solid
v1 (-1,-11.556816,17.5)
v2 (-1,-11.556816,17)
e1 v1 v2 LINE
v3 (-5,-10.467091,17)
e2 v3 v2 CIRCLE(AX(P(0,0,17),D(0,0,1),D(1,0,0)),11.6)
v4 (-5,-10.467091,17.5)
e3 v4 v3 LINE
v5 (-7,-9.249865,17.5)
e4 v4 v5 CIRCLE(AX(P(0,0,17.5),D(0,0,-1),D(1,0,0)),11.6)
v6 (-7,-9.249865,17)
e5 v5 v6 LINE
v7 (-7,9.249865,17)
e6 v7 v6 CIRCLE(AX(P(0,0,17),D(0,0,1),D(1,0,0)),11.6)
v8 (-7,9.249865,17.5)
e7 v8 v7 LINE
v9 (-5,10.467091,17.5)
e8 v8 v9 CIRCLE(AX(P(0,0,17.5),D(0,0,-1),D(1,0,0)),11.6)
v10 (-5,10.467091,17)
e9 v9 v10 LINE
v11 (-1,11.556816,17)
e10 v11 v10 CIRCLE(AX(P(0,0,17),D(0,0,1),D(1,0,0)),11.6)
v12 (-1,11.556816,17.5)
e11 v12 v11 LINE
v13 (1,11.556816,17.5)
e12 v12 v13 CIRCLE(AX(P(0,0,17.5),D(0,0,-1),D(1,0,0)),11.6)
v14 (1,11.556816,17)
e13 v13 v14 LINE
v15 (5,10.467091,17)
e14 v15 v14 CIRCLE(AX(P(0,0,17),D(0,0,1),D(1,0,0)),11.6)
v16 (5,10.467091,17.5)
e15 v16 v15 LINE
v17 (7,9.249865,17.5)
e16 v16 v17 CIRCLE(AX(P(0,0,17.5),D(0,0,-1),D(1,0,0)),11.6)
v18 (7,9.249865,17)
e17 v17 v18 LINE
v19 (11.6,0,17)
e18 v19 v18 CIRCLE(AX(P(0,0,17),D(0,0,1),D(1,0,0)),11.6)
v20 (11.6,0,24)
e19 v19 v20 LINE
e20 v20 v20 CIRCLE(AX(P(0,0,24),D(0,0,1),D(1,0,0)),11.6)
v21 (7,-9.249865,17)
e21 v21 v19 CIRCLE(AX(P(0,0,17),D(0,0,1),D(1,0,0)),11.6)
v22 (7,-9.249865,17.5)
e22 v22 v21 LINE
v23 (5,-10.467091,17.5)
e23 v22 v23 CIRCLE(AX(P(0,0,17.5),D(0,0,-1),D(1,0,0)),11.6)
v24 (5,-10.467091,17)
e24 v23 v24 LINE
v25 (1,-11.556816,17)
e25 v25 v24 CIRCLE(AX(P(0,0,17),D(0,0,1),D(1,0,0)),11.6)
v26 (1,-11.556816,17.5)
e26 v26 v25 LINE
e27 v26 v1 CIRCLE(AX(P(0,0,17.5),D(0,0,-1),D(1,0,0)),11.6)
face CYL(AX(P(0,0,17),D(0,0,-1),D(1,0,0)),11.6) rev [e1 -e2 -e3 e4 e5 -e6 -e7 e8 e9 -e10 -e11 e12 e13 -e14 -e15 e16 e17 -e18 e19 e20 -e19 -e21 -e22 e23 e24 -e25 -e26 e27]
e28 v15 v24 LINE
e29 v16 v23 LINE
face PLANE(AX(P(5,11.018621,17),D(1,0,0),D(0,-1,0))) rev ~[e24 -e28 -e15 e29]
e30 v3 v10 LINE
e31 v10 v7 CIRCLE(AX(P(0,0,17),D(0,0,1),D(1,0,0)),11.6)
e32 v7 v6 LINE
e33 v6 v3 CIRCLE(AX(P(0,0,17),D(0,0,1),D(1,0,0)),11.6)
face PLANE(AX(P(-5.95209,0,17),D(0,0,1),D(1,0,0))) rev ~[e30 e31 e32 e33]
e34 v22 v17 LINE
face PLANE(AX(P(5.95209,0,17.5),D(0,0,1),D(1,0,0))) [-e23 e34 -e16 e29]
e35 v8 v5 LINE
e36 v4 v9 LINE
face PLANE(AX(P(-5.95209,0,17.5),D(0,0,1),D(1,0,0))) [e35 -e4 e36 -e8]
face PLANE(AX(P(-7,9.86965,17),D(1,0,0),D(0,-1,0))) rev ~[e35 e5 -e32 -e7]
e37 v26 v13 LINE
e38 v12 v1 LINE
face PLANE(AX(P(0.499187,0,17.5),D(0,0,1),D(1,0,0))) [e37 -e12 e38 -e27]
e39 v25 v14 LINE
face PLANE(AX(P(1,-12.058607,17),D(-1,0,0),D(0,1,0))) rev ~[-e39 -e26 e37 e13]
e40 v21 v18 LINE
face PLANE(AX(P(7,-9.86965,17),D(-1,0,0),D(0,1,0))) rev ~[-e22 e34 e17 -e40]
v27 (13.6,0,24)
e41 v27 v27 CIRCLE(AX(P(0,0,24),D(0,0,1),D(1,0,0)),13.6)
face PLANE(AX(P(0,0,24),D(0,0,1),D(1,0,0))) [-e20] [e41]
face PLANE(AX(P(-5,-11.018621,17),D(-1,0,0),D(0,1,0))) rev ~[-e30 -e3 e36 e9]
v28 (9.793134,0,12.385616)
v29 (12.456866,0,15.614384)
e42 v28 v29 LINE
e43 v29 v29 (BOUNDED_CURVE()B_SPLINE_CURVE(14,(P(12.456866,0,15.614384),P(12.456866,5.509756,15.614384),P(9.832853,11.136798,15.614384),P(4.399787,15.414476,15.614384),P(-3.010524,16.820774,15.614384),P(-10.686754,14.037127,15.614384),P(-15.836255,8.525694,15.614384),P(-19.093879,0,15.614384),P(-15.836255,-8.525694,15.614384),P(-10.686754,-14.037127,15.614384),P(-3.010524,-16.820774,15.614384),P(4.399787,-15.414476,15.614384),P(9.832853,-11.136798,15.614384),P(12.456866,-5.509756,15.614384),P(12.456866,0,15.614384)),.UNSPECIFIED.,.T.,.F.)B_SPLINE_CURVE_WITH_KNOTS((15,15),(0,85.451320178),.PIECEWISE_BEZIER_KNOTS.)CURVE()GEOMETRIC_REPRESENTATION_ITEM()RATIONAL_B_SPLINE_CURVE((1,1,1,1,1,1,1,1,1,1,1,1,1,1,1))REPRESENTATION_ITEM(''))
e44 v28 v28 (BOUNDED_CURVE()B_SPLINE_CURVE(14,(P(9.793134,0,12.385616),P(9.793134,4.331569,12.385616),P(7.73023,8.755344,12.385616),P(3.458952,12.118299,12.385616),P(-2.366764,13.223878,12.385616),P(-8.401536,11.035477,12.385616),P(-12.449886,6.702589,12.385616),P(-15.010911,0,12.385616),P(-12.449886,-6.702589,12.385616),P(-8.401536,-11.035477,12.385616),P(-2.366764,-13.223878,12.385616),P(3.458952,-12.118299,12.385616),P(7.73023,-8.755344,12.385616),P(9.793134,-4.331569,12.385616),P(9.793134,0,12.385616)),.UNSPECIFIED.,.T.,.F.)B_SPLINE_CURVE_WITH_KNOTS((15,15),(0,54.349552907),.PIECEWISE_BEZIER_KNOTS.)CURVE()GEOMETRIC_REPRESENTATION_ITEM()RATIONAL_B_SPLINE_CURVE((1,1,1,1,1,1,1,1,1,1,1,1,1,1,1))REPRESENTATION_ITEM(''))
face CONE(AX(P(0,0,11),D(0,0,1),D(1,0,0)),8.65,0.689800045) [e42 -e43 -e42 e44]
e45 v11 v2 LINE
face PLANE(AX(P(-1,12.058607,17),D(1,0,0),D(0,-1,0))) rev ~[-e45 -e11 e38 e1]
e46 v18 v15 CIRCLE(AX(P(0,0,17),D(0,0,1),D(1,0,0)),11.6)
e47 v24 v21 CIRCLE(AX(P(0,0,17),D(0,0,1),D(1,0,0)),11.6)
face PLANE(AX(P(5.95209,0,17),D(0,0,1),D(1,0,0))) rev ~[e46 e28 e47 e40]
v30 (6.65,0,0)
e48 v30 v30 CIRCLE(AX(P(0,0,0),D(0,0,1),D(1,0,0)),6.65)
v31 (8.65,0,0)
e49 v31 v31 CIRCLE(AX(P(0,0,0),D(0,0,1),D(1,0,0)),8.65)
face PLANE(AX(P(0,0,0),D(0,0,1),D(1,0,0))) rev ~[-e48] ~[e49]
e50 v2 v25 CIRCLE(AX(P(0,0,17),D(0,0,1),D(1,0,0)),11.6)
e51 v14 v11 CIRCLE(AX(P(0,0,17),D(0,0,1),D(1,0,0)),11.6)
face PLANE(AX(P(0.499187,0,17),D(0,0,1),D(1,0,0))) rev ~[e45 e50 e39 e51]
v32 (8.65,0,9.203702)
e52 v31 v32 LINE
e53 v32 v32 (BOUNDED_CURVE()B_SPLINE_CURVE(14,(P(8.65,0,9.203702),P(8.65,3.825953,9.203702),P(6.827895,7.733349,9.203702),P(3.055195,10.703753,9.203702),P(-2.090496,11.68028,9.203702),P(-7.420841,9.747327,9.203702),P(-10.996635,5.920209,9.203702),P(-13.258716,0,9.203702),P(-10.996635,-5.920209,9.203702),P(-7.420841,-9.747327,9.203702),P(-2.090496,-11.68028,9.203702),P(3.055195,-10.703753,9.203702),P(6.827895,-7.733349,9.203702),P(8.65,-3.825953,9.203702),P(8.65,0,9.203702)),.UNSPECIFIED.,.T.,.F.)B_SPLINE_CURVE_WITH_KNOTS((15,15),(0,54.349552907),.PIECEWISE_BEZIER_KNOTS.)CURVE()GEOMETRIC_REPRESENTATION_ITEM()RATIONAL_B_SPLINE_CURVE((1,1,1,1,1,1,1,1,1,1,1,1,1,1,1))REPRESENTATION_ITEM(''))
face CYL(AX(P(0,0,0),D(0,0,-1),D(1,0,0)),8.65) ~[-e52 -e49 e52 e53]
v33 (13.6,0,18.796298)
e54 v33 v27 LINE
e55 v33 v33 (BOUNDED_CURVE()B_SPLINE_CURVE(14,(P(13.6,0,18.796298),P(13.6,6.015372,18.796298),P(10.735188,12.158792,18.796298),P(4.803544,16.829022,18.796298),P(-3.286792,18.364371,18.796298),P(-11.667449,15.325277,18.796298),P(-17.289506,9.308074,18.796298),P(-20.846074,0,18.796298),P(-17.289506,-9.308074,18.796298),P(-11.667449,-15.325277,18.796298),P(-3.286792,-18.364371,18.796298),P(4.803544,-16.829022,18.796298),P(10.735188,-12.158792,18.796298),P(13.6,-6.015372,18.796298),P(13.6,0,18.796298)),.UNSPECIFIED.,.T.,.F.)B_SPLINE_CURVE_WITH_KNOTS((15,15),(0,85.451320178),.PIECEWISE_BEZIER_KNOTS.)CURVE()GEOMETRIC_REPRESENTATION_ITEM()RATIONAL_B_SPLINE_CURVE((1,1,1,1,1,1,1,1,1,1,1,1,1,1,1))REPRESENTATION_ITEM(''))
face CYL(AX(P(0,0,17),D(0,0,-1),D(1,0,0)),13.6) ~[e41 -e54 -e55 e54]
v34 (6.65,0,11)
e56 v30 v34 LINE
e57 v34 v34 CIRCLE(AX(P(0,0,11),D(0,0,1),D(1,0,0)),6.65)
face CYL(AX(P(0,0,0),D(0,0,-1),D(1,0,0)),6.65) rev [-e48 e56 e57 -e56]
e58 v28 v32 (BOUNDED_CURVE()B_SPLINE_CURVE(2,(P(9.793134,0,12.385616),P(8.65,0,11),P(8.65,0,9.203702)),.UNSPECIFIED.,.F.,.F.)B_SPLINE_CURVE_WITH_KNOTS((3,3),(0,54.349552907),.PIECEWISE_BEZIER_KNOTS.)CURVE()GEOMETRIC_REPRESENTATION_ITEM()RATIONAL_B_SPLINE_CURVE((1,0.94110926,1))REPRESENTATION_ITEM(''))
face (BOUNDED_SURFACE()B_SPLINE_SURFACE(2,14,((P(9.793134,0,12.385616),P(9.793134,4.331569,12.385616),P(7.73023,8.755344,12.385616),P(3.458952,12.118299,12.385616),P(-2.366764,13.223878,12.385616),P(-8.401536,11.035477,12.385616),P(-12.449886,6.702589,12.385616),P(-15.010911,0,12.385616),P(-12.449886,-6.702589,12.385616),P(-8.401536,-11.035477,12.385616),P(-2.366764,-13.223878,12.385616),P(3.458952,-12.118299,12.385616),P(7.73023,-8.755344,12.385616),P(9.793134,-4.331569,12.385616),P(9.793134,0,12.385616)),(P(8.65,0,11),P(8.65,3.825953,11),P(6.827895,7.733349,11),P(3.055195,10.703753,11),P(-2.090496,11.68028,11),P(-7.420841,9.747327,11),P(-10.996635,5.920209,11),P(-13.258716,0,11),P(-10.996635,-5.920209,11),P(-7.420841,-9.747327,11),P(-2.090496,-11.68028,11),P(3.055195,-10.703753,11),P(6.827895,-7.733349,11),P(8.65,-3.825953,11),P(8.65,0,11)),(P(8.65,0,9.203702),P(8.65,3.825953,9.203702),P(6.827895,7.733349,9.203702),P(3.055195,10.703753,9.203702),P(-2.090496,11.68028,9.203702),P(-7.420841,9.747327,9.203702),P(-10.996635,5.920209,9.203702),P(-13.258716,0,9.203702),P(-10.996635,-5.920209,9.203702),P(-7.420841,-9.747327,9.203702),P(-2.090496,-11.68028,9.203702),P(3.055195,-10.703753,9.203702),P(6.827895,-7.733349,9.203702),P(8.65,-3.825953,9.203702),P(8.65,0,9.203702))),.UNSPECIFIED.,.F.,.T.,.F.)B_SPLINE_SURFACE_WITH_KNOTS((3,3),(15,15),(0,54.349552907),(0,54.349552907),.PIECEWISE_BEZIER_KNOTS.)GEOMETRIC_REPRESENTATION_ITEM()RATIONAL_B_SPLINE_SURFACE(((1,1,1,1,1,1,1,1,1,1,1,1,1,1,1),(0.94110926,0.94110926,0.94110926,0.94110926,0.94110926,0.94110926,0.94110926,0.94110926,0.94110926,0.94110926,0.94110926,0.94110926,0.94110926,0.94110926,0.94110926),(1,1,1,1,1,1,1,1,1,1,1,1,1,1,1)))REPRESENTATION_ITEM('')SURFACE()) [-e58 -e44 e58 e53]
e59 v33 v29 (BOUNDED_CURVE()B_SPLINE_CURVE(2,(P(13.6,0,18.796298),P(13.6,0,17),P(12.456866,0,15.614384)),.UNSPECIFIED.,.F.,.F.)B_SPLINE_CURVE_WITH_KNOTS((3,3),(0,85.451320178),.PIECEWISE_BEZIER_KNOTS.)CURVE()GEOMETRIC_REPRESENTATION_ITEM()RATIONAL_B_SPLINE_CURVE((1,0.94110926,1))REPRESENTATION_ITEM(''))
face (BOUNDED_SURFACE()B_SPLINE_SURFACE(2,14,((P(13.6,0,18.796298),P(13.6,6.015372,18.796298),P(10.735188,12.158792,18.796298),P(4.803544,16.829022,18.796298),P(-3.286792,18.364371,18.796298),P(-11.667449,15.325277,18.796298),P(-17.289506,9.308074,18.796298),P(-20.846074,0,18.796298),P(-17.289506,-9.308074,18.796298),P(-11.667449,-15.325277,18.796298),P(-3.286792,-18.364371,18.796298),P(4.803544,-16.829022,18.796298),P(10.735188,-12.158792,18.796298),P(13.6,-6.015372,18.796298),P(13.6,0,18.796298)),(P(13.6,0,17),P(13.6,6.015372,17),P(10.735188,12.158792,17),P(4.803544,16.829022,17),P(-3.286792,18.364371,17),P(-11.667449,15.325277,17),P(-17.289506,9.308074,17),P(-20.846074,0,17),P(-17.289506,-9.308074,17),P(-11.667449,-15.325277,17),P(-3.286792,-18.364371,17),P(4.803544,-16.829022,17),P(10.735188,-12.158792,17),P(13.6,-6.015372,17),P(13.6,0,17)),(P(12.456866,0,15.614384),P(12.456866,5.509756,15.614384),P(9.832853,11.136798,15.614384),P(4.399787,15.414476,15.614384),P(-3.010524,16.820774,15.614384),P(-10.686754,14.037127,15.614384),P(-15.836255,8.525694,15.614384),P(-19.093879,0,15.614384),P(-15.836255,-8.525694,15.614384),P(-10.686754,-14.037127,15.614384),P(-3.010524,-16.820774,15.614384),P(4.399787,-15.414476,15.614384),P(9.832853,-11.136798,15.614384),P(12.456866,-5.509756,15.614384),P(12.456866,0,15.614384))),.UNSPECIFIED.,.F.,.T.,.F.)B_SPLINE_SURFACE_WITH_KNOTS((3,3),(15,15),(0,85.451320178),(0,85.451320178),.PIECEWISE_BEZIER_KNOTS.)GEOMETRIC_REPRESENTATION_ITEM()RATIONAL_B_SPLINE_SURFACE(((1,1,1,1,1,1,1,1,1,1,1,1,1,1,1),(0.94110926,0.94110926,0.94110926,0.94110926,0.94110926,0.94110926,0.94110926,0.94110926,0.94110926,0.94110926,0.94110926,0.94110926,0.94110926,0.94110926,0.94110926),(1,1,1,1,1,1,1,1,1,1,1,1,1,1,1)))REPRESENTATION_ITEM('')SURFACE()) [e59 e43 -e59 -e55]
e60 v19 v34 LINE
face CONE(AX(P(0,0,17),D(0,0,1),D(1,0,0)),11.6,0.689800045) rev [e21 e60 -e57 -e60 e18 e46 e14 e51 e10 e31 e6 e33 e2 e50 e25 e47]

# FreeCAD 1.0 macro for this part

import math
import FreeCAD as App
import Part
import Sketcher

V = App.Vector
Q = App.Units.Quantity


def edges_at(feature, points):
    """Names of the edges that pass closest to the given points."""
    edges = feature.Shape.Edges
    near = lambda p: min(range(len(edges)), key=lambda i: edges[i].distToShape(Part.Vertex(*p))[0])
    return sorted({f"Edge{near(p) + 1}" for p in points})

doc = App.newDocument("Part")
params = doc.addObject("Spreadsheet::Sheet", "Params")
for row, (alias, value) in enumerate([
    ("sketch1_diameter", "17.3 mm"),
    ("sketch1_diameter2", "13.3 mm"),
    ("pad1_length", "11 mm"),
    ("sketch2_diameter", "27.2 mm"),
    ("sketch2_diameter2", "23.2 mm"),
    ("pad2_length", "7 mm"),
    ("sketch3_width", "2 mm"),
    ("revolution_angle", "360 deg"),
    ("pad3_length", "0.5 mm"),
    ("fillet_radius", "5 mm"),
], start=1):
    params.set(f"A{row}", alias)
    params.set(f"B{row}", "=" + value)
    params.setAlias(f"B{row}", alias)

body = doc.addObject("PartDesign::Body", "Body")

sketch1 = doc.addObject("Sketcher::SketchObject", "Sketch")
body.addObject(sketch1)
sketch1.AttachmentSupport = (doc.XY_Plane, [""])
sketch1.MapMode = "FlatFace"
sketch1.addGeometry([
    Part.Circle(V(0, 0, 0), V(0, 0, 1), 8.65),
    Part.Circle(V(0, 0, 0), V(0, 0, 1), 6.65),
], False)
sketch1.addConstraint([
    Sketcher.Constraint("Coincident", 0, 3, -1, 1),
    Sketcher.Constraint("Coincident", 1, 3, -1, 1),
    Sketcher.Constraint("Diameter", 0, Q("17.3 mm")),
    Sketcher.Constraint("Diameter", 1, Q("13.3 mm")),
])
sketch1.setExpression("Constraints[2]", "Params.sketch1_diameter")
sketch1.setExpression("Constraints[3]", "Params.sketch1_diameter2")
pad1 = doc.addObject("PartDesign::Pad", "Pad")
body.addObject(pad1)
pad1.Profile = sketch1
pad1.setExpression("Length", "Params.pad1_length")
body2 = doc.addObject("PartDesign::Body", "Body001")

sketch2 = doc.addObject("Sketcher::SketchObject", "Sketch001")
body2.addObject(sketch2)
sketch2.AttachmentSupport = (doc.getObject("XY_Plane001"), [""])
sketch2.MapMode = "FlatFace"
sketch2.AttachmentOffset = App.Placement(V(0, 0, 17), App.Rotation())
sketch2.addGeometry([
    Part.Circle(V(0, 0, 0), V(0, 0, 1), 13.6),
    Part.Circle(V(0, 0, 0), V(0, 0, 1), 11.6),
], False)
sketch2.addConstraint([
    Sketcher.Constraint("Coincident", 0, 3, -1, 1),
    Sketcher.Constraint("Coincident", 1, 3, -1, 1),
    Sketcher.Constraint("Diameter", 0, Q("27.2 mm")),
    Sketcher.Constraint("Diameter", 1, Q("23.2 mm")),
])
sketch2.setExpression("Constraints[2]", "Params.sketch2_diameter")
sketch2.setExpression("Constraints[3]", "Params.sketch2_diameter2")
pad2 = doc.addObject("PartDesign::Pad", "Pad001")
body2.addObject(pad2)
pad2.Profile = sketch2
pad2.setExpression("Length", "Params.pad2_length")
body3 = doc.addObject("PartDesign::Body", "Body002")

sketch3 = doc.addObject("Sketcher::SketchObject", "Sketch002")
body3.addObject(sketch3)
sketch3.AttachmentSupport = (doc.getObject("XZ_Plane002"), [""])
sketch3.MapMode = "FlatFace"
sketch3.addGeometry([
    Part.LineSegment(V(11.6, 17, 0), V(6.65, 11, 0)),
    Part.LineSegment(V(6.65, 11, 0), V(8.65, 11, 0)),
    Part.LineSegment(V(8.65, 11, 0), V(13.6, 17, 0)),
    Part.LineSegment(V(13.6, 17, 0), V(11.6, 17, 0)),
], False)
sketch3.addConstraint([
    Sketcher.Constraint("Coincident", 0, 2, 1, 1),
    Sketcher.Constraint("Coincident", 1, 2, 2, 1),
    Sketcher.Constraint("Coincident", 2, 2, 3, 1),
    Sketcher.Constraint("Coincident", 3, 2, 0, 1),
    Sketcher.Constraint("Horizontal", 1),
    Sketcher.Constraint("Horizontal", 3),
    Sketcher.Constraint("Parallel", 0, 2),
    Sketcher.Constraint("DistanceX", 1, 1, 1, 2, Q("2 mm")),
    Sketcher.Constraint("DistanceY", -1, 1, 0, 2, Q("11 mm")),
    Sketcher.Constraint("DistanceY", -1, 1, 2, 2, Q("17 mm")),
    Sketcher.Constraint("DistanceX", -1, 1, 2, 2, Q("13.6 mm")),
    Sketcher.Constraint("DistanceX", -1, 1, 0, 2, Q("6.65 mm")),
])
sketch3.setExpression("Constraints[7]", "Params.sketch3_width")
revolution = doc.addObject("PartDesign::Revolution", "Revolution")
body3.addObject(revolution)
revolution.Profile = sketch3
revolution.ReferenceAxis = (sketch3, ["V_Axis"])
revolution.setExpression("Angle", "Params.revolution_angle")
body4 = doc.addObject("PartDesign::Body", "Body003")
body4.AllowCompound = True

sketch4 = doc.addObject("Sketcher::SketchObject", "Sketch003")
body4.addObject(sketch4)
sketch4.AttachmentSupport = (doc.getObject("XY_Plane003"), [""])
sketch4.MapMode = "FlatFace"
sketch4.AttachmentOffset = App.Placement(V(0, 0, 17), App.Rotation())
sketch4.addGeometry([
    Part.LineSegment(V(-5, -11.018621, 0), V(-5, 11.018621, 0)),
    Part.ArcOfCircle(Part.Circle(V(0.000009, -0.000009, 0), V(0, 0, 1), 12.100012), math.radians(114.407492), math.radians(125.345994)),
    Part.LineSegment(V(-7, 9.86965, 0), V(-7, -9.86965, 0)),
    Part.ArcOfCircle(Part.Circle(V(0.000009, 0.000009, 0), V(0, 0, 1), 12.100012), math.radians(-125.345994), math.radians(-114.407492)),
    Part.LineSegment(V(1, -12.058607, 0), V(1, 12.058607, 0)),
    Part.ArcOfCircle(Part.Circle(V(-0.000016, -0.000416, 0), V(0, 0, 1), 12.100416), math.radians(85.259493), math.radians(89.999925)),
    Part.ArcOfCircle(Part.Circle(V(0.000016, -0.000416, 0), V(0, 0, 1), 12.100416), math.radians(90.000075), math.radians(94.740507)),
    Part.LineSegment(V(-1, 12.058607, 0), V(-1, -12.058607, 0)),
    Part.ArcOfCircle(Part.Circle(V(0.000016, 0.000416, 0), V(0, 0, 1), 12.100416), math.radians(-94.740507), math.radians(-90.000075)),
    Part.ArcOfCircle(Part.Circle(V(-0.000016, 0.000416, 0), V(0, 0, 1), 12.100416), math.radians(-89.999925), math.radians(-85.259493)),
    Part.LineSegment(V(7, -9.86965, 0), V(7, 9.86965, 0)),
    Part.ArcOfCircle(Part.Circle(V(-0.000009, -0.000009, 0), V(0, 0, 1), 12.100012), math.radians(54.654006), math.radians(65.592508)),
    Part.LineSegment(V(5, 11.018621, 0), V(5, -11.018621, 0)),
    Part.ArcOfCircle(Part.Circle(V(-0.000009, 0.000009, 0), V(0, 0, 1), 12.100012), math.radians(-65.592508), math.radians(-54.654006)),
], False)
sketch4.addConstraint([
    Sketcher.Constraint("Coincident", 0, 2, 1, 1),
    Sketcher.Constraint("Coincident", 1, 2, 2, 1),
    Sketcher.Constraint("Coincident", 2, 2, 3, 1),
    Sketcher.Constraint("Coincident", 3, 2, 0, 1),
    Sketcher.Constraint("Coincident", 4, 2, 5, 1),
    Sketcher.Constraint("Coincident", 5, 2, 6, 1),
    Sketcher.Constraint("Coincident", 6, 2, 7, 1),
    Sketcher.Constraint("Coincident", 7, 2, 8, 1),
    Sketcher.Constraint("Coincident", 8, 2, 9, 1),
    Sketcher.Constraint("Coincident", 9, 2, 4, 1),
    Sketcher.Constraint("Coincident", 10, 2, 11, 1),
    Sketcher.Constraint("Coincident", 11, 2, 12, 1),
    Sketcher.Constraint("Coincident", 12, 2, 13, 1),
    Sketcher.Constraint("Coincident", 13, 2, 10, 1),
    Sketcher.Constraint("Vertical", 0),
    Sketcher.Constraint("Vertical", 2),
    Sketcher.Constraint("Vertical", 4),
    Sketcher.Constraint("Vertical", 7),
    Sketcher.Constraint("Vertical", 10),
    Sketcher.Constraint("Vertical", 12),
    Sketcher.Constraint("Equal", 1, 3),
    Sketcher.Constraint("Equal", 5, 6),
    Sketcher.Constraint("Equal", 6, 8),
    Sketcher.Constraint("Equal", 8, 9),
    Sketcher.Constraint("Equal", 3, 11),
    Sketcher.Constraint("Equal", 11, 13),
    Sketcher.Constraint("Symmetric", 5, 3, 8, 3, -1, 1),
    Sketcher.Constraint("Symmetric", 3, 3, 11, 3, -1, 1),
    Sketcher.Constraint("Symmetric", 1, 3, 13, 3, -1, 1),
    Sketcher.Constraint("Symmetric", 6, 2, 9, 2, -1, 1),
    Sketcher.Constraint("Symmetric", 1, 3, 11, 3, -2),
    Sketcher.Constraint("PointOnObject", 5, 2, -2),
    Sketcher.Constraint("PointOnObject", 8, 2, -2),
    Sketcher.Constraint("Horizontal", 4, 2, 6, 2),
    Sketcher.Constraint("Horizontal", 1, 2, 10, 2),
    Sketcher.Constraint("Horizontal", 0, 2, 11, 2),
    Sketcher.Constraint("DistanceX", 0, 2, -1, 1, Q("5 mm")),
    Sketcher.Constraint("DistanceX", 1, 2, -1, 1, Q("7 mm")),
    Sketcher.Constraint("DistanceX", -1, 1, 4, 2, Q("1 mm")),
    Sketcher.Constraint("DistanceY", -1, 1, 5, 2, Q("12.1 mm")),
    Sketcher.Constraint("DistanceY", 2, 2, 2, 1, Q("19.7393 mm")),
    Sketcher.Constraint("Radius", 1, Q("12.100012 mm")),
    Sketcher.Constraint("Radius", 5, Q("12.100416 mm")),
    Sketcher.Constraint("DistanceY", 0, 1, 0, 2, Q("22.037242 mm")),
    Sketcher.Constraint("DistanceY", 3, 3, 4, 2, Q("12.058598 mm")),
])
pad3 = doc.addObject("PartDesign::Pad", "Pad002")
body4.addObject(pad3)
pad3.Profile = sketch4
pad3.setExpression("Length", "Params.pad3_length")
doc.recompute()

boolean = doc.addObject("PartDesign::Boolean", "Boolean")
body.addObject(boolean)
boolean.Type = "Fuse"
boolean.addObjects([body3])
doc.recompute()

boolean2 = doc.addObject("PartDesign::Boolean", "Boolean001")
body.addObject(boolean2)
boolean2.Type = "Fuse"
boolean2.addObjects([body2])
doc.recompute()

boolean3 = doc.addObject("PartDesign::Boolean", "Boolean002")
body.addObject(boolean3)
boolean3.Type = "Fuse"
boolean3.addObjects([body4])
doc.recompute()

fillet = doc.addObject("PartDesign::Fillet", "Fillet")
body.addObject(fillet)
fillet.Base = (boolean3, edges_at(boolean3, [(-8.65, 0, 11), (-13.6, 0, 17)]))
fillet.setExpression("Radius", "Params.fillet_radius")

doc.recompute()
